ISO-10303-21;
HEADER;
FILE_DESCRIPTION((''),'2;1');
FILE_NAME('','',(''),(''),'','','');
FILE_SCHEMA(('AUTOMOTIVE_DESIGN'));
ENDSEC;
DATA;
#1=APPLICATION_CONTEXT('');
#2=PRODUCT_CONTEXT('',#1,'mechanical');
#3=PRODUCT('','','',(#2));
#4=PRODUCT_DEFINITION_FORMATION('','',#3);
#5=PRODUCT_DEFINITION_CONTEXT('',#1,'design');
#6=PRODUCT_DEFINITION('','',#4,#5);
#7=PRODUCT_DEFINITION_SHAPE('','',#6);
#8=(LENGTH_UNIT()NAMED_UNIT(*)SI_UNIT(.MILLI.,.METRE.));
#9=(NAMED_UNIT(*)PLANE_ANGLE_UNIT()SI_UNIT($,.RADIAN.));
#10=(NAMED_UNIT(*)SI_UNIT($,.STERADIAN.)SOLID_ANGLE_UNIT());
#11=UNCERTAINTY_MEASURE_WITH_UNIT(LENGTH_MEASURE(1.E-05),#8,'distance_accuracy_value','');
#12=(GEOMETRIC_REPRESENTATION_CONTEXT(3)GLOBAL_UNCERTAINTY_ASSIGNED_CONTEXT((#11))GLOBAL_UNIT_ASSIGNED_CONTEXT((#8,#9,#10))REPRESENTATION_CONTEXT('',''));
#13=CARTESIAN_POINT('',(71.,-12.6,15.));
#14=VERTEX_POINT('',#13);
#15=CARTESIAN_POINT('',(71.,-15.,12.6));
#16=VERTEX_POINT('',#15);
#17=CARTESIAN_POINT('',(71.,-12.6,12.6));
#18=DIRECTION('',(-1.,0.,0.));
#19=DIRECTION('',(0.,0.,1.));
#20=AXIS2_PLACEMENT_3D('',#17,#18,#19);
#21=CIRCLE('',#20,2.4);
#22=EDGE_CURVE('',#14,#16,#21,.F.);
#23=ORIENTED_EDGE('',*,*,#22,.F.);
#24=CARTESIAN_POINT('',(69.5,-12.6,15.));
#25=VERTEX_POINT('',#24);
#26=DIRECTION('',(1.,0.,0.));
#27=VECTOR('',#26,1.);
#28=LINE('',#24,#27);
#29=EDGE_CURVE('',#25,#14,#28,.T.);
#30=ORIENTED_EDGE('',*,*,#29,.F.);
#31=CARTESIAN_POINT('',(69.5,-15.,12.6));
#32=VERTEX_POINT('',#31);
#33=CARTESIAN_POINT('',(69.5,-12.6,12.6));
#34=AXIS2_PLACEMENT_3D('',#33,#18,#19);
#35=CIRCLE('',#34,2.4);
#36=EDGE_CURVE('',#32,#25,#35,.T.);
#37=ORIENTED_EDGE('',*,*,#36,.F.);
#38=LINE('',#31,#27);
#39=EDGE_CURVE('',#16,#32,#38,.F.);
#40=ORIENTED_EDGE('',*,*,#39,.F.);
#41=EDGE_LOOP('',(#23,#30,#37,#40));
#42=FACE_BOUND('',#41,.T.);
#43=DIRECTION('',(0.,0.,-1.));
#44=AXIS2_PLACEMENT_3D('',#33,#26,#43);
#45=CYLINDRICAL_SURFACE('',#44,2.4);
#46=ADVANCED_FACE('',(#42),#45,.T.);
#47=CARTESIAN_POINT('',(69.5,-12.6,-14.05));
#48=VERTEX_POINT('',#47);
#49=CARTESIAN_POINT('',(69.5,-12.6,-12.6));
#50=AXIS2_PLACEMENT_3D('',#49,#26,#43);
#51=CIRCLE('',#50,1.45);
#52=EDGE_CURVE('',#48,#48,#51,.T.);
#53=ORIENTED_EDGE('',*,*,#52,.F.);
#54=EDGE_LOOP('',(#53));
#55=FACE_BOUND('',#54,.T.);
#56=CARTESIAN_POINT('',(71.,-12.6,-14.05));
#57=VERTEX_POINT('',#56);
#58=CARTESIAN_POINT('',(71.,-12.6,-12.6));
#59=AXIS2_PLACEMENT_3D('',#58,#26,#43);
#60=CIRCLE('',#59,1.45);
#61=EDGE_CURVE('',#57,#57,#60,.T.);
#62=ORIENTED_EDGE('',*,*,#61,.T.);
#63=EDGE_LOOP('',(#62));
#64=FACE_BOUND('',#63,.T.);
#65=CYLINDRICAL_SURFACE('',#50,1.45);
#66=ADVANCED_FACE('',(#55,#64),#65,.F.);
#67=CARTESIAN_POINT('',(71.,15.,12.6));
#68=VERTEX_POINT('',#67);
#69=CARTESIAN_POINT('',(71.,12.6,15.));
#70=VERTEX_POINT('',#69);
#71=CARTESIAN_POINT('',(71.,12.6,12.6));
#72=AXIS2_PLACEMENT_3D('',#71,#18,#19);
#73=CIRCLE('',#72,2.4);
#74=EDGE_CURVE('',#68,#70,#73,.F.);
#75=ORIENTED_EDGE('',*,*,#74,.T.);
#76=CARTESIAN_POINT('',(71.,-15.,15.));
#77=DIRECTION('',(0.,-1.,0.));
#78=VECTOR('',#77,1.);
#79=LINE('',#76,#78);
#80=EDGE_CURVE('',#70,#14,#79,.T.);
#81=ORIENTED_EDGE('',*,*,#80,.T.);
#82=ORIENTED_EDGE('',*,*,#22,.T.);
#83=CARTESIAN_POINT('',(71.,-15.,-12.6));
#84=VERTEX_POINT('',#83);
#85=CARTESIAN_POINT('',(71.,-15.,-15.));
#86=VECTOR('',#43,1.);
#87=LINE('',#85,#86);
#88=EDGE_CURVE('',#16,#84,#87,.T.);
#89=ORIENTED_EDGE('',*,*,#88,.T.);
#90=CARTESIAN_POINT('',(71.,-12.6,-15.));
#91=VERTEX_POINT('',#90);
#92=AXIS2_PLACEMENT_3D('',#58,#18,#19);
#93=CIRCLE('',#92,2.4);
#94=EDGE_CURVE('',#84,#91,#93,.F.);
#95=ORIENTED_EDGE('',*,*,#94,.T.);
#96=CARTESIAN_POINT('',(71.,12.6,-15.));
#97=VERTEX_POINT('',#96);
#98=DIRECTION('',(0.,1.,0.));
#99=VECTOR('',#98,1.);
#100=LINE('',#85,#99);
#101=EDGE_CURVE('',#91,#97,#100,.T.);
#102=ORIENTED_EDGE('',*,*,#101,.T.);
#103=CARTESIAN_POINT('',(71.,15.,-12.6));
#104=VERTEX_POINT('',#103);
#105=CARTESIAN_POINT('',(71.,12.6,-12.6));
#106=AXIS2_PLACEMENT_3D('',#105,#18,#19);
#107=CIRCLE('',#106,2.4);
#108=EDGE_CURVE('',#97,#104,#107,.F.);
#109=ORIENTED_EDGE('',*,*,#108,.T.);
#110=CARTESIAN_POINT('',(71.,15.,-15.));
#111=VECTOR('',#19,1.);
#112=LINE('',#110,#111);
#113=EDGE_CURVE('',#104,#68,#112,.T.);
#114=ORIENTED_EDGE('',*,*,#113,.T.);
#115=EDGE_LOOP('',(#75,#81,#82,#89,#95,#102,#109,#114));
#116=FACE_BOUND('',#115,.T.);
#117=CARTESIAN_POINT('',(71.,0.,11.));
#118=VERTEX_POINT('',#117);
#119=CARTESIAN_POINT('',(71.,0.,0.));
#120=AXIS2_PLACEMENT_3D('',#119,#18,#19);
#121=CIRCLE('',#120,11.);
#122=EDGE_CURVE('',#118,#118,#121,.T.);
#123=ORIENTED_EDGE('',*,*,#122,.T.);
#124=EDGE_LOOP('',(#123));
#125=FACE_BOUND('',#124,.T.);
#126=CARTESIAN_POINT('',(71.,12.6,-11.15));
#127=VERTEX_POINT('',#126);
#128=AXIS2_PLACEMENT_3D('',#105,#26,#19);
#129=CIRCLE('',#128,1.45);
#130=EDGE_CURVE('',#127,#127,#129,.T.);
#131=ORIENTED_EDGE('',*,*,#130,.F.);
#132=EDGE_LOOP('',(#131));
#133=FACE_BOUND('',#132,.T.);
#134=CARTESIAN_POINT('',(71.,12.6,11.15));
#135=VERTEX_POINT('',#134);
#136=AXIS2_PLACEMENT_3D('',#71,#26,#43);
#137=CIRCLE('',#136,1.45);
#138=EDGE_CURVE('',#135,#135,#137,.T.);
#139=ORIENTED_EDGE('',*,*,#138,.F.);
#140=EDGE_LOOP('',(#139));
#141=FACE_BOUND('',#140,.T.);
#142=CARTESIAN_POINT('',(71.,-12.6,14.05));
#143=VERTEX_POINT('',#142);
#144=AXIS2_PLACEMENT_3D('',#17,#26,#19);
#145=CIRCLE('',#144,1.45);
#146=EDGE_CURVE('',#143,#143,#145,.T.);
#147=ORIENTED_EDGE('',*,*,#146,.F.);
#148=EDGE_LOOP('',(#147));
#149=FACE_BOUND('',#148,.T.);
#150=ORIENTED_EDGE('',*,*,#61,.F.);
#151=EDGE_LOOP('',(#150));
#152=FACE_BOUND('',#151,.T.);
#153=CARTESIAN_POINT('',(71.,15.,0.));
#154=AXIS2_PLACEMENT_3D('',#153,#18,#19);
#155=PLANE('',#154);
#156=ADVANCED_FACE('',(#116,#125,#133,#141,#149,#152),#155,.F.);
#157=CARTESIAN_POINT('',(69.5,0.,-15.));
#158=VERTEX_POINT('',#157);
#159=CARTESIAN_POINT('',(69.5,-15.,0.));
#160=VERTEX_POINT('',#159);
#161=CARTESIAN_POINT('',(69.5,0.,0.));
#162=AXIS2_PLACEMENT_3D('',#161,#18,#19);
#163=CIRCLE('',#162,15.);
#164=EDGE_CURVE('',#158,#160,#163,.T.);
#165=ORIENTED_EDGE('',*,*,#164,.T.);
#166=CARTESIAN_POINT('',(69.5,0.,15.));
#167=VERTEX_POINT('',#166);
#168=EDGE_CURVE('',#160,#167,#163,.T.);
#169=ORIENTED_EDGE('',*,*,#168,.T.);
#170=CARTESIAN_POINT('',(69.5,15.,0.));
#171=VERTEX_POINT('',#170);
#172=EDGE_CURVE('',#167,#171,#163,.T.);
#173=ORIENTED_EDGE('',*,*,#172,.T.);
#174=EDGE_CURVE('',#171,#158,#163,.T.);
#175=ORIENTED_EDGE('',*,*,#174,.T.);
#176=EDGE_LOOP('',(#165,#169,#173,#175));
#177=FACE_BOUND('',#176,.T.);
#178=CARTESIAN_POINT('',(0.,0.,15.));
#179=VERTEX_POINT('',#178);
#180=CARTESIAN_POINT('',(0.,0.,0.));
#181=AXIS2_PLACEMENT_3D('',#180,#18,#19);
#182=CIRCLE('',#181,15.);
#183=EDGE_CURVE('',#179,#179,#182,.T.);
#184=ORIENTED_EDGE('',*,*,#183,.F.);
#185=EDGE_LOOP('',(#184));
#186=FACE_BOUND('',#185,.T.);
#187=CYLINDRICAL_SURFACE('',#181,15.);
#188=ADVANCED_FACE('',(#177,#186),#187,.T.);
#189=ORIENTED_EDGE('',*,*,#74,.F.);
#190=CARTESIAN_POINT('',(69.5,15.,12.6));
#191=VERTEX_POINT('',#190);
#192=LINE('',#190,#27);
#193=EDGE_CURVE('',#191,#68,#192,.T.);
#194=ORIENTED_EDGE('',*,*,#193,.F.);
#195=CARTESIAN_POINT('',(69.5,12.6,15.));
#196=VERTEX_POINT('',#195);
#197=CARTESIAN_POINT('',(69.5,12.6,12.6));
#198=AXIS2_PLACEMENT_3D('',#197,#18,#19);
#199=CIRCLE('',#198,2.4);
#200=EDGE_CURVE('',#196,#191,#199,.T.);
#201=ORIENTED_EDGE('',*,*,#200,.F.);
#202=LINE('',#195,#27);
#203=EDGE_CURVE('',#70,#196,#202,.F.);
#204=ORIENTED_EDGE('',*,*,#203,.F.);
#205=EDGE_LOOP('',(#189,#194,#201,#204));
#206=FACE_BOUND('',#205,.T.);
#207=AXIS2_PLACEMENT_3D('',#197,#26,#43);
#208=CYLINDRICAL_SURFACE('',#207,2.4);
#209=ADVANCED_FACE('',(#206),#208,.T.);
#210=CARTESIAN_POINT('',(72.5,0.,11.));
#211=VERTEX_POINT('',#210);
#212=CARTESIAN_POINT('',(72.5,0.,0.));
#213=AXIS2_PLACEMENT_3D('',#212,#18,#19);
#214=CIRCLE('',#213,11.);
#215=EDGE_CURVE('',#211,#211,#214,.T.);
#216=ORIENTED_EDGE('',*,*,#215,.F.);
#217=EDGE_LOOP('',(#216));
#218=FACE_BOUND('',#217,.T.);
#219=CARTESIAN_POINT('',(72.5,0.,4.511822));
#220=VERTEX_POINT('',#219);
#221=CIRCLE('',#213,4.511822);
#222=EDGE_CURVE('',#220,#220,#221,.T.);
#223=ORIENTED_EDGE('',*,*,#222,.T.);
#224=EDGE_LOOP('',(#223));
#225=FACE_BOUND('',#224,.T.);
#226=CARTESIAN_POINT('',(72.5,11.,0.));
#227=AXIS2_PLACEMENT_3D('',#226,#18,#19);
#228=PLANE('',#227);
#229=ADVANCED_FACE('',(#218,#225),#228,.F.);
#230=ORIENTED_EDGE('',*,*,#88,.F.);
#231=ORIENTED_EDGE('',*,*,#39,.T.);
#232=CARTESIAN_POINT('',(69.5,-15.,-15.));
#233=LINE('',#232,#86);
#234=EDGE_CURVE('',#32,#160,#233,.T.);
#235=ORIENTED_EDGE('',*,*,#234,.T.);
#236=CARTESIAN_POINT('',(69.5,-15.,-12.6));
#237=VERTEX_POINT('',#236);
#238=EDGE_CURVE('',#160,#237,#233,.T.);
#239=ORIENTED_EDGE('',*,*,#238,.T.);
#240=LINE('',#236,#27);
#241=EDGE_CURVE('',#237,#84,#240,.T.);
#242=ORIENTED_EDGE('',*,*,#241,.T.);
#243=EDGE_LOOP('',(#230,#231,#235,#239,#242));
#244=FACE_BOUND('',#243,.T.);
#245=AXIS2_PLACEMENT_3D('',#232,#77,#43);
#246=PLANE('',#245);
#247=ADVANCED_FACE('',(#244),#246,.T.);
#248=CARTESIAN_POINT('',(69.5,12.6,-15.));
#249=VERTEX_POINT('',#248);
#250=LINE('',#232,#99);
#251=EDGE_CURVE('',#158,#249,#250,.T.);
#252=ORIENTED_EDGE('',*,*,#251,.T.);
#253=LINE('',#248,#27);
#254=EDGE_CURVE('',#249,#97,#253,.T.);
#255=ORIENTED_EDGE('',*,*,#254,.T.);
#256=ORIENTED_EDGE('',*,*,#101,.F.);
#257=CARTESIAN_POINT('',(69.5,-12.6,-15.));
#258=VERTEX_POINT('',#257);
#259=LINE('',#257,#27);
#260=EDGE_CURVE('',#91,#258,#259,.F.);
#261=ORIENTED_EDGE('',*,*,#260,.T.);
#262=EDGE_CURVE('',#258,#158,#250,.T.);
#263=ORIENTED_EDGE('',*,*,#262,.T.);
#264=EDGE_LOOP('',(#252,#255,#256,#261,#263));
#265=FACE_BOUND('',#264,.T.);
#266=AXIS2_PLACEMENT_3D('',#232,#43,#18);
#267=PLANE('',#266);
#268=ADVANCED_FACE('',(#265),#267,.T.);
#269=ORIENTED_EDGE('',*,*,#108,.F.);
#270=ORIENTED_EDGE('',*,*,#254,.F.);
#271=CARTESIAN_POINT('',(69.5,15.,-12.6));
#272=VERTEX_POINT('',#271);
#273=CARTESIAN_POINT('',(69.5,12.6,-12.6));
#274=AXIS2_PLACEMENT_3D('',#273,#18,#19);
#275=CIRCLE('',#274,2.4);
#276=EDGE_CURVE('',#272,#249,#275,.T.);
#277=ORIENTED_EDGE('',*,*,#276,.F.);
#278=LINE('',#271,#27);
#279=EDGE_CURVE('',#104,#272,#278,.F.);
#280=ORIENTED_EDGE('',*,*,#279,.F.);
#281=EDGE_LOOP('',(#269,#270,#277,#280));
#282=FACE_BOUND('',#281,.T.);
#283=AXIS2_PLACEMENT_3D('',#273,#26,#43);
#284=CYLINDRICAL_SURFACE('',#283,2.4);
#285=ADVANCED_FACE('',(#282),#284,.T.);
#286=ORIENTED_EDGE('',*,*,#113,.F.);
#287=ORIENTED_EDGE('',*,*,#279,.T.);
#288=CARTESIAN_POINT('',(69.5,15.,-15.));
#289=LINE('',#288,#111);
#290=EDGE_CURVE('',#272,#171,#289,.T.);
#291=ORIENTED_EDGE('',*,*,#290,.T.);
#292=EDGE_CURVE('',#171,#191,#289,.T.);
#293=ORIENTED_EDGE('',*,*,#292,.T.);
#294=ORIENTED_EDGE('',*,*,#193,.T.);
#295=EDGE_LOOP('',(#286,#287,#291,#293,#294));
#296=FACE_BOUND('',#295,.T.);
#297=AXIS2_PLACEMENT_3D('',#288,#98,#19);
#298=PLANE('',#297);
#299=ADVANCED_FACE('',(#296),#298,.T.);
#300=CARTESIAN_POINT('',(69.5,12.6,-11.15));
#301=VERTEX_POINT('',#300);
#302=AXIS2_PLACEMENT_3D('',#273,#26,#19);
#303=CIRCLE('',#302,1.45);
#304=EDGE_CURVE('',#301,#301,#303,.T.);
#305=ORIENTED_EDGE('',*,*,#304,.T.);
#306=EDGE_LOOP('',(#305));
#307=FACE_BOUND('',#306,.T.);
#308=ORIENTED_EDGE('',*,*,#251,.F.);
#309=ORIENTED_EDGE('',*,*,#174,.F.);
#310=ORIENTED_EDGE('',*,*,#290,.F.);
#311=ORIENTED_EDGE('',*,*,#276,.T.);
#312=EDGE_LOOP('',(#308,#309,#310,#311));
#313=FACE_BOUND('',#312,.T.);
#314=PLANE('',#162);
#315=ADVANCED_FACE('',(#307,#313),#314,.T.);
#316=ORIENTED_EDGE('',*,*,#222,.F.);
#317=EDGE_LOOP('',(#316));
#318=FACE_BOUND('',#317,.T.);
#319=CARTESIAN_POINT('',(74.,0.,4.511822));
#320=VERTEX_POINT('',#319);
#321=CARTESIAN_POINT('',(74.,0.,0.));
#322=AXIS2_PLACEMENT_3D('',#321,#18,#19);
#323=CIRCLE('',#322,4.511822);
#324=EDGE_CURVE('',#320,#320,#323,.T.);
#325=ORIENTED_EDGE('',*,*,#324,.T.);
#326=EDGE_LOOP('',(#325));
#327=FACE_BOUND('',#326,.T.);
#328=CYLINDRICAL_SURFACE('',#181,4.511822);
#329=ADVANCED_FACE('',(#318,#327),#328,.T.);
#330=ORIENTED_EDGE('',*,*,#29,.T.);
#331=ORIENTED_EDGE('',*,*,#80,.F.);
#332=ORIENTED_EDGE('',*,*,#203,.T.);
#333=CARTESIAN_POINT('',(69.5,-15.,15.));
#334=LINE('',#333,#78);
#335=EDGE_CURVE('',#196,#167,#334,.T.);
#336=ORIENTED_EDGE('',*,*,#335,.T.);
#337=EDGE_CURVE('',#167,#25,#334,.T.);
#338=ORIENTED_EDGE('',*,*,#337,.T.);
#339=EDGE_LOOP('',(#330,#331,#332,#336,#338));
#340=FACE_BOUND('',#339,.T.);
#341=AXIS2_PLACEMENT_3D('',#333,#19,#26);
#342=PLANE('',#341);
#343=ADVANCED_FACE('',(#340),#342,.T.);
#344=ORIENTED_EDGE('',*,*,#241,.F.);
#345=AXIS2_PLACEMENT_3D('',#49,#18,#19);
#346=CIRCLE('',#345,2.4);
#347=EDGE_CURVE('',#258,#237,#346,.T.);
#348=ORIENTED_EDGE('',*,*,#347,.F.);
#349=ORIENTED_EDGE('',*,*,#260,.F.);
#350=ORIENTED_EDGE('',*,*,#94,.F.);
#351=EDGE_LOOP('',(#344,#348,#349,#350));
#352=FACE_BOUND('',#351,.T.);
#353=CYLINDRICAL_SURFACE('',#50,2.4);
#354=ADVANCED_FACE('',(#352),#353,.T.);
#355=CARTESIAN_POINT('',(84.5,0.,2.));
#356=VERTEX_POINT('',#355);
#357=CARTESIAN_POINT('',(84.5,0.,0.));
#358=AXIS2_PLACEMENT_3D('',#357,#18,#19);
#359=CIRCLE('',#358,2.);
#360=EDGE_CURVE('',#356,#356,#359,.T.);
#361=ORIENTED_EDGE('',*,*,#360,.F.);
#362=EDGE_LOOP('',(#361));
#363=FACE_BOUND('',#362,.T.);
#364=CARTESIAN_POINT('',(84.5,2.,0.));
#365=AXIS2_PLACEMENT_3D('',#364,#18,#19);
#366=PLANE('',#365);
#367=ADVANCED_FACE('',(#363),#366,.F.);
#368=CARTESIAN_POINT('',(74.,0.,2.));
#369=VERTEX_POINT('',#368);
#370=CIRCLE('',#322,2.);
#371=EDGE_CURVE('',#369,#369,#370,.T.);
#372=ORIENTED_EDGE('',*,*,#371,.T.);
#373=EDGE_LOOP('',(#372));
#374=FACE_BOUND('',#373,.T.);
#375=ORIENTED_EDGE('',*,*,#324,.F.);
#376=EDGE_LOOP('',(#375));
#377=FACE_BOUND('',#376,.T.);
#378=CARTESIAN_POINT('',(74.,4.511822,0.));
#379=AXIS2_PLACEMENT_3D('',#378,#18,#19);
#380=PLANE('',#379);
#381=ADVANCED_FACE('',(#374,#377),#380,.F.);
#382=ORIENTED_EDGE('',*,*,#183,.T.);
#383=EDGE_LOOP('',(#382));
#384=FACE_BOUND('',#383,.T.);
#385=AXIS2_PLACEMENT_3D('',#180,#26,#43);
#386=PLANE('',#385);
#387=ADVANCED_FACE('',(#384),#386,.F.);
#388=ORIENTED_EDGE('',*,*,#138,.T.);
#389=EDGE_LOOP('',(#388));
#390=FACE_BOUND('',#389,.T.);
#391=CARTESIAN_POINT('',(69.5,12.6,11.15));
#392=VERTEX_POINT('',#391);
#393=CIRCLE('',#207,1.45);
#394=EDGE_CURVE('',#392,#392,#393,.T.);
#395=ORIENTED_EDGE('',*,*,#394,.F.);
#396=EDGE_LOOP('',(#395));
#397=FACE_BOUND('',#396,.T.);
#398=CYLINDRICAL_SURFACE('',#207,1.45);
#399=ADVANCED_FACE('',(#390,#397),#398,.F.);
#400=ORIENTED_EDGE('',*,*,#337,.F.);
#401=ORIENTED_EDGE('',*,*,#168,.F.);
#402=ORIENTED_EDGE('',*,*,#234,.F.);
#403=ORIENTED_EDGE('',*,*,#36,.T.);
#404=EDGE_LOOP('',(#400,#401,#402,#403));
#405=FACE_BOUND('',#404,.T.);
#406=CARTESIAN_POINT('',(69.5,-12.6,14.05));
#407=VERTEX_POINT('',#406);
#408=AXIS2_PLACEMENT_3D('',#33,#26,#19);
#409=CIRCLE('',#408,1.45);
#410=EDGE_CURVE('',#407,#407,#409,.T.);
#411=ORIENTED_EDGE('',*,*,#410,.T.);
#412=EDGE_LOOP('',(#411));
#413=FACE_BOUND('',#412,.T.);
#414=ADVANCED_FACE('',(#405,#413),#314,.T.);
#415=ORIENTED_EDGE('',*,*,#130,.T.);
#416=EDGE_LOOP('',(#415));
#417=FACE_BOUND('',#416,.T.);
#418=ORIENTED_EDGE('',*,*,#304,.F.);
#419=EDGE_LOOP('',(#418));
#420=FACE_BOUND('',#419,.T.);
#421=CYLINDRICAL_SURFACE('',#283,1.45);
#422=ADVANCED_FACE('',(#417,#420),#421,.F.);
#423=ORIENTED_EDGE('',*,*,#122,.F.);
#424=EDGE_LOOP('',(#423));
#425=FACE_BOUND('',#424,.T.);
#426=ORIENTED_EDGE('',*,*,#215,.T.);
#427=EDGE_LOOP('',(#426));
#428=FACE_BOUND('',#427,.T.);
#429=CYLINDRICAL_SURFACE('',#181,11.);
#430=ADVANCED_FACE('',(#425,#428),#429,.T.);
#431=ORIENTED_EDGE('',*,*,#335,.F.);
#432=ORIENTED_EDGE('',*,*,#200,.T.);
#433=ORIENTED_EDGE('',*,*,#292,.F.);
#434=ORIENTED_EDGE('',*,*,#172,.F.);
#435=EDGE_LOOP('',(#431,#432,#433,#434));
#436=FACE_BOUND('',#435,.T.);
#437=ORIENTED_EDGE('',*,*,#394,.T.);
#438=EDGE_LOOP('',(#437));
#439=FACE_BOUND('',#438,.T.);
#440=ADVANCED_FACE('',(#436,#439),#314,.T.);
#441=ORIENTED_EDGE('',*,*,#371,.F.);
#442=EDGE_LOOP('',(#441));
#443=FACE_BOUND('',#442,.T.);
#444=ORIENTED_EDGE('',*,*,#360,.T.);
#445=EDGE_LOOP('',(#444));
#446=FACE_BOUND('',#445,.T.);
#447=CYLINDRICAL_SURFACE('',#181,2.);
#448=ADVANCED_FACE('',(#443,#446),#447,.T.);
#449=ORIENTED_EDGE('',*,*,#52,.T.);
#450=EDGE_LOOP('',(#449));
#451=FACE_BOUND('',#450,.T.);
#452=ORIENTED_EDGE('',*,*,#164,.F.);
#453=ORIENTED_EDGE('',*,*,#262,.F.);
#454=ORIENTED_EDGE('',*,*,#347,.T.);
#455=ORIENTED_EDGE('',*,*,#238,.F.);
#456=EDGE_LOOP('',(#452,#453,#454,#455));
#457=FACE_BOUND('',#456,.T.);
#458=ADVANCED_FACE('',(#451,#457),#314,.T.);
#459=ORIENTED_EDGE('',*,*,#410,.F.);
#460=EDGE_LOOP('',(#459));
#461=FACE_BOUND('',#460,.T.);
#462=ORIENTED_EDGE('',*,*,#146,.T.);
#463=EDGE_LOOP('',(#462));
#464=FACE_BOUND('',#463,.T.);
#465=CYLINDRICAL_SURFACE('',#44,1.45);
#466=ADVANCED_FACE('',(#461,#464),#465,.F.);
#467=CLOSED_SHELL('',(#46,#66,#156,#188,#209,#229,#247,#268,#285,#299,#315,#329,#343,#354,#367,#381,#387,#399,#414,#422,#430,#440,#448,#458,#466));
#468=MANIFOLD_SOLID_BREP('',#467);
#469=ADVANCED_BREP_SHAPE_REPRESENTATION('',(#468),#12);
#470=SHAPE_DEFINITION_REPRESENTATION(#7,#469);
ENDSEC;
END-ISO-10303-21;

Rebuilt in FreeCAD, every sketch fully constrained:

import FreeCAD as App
import Part
import Sketcher

V = App.Vector


def edges_at(feature, points):
    """Names of the edges that pass closest to the given points."""
    edges = feature.Shape.Edges
    near = lambda p: min(range(len(edges)), key=lambda i: edges[i].distToShape(Part.Vertex(*p))[0])
    return sorted({f"Edge{near(p) + 1}" for p in points})

doc = App.newDocument("Part")
body = doc.addObject("PartDesign::Body", "Body")

# Sketch on XY plane
sketch1 = body.newObject("Sketcher::SketchObject", "Sketch")
sketch1.AttachmentSupport = (doc.getObject("XY_Plane"), [""])
sketch1.MapMode = "FlatFace"
sketch1.addGeometry([
    Part.LineSegment(V(0, 15, 0), V(0, 0, 0)),  # 0
    Part.LineSegment(V(0, 0, 0), V(84.5, 0, 0)),  # 1
    Part.LineSegment(V(84.5, 0, 0), V(84.5, 2, 0)),  # 2
    Part.LineSegment(V(84.5, 2, 0), V(74, 2, 0)),  # 3
    Part.LineSegment(V(74, 2, 0), V(74, 4.5, 0)),  # 4
    Part.LineSegment(V(74, 4.5, 0), V(72.5, 4.5, 0)),  # 5
    Part.LineSegment(V(72.5, 4.5, 0), V(72.5, 11, 0)),  # 6
    Part.LineSegment(V(72.5, 11, 0), V(71, 11, 0)),  # 7
    Part.LineSegment(V(71, 11, 0), V(71, 15, 0)),  # 8
    Part.LineSegment(V(71, 15, 0), V(0, 15, 0)),  # 9
], False)
sketch1.addConstraint([
    Sketcher.Constraint("Coincident", 0, 2, 1, 1),
    Sketcher.Constraint("Coincident", 1, 2, 2, 1),
    Sketcher.Constraint("Coincident", 2, 2, 3, 1),
    Sketcher.Constraint("Coincident", 3, 2, 4, 1),
    Sketcher.Constraint("Coincident", 4, 2, 5, 1),
    Sketcher.Constraint("Coincident", 5, 2, 6, 1),
    Sketcher.Constraint("Coincident", 6, 2, 7, 1),
    Sketcher.Constraint("Coincident", 7, 2, 8, 1),
    Sketcher.Constraint("Coincident", 8, 2, 9, 1),
    Sketcher.Constraint("Coincident", 9, 2, 0, 1),
    Sketcher.Constraint("Vertical", 0),
    Sketcher.Constraint("Horizontal", 1),
    Sketcher.Constraint("Vertical", 2),
    Sketcher.Constraint("Horizontal", 3),
    Sketcher.Constraint("Vertical", 4),
    Sketcher.Constraint("Horizontal", 5),
    Sketcher.Constraint("Vertical", 6),
    Sketcher.Constraint("Horizontal", 7),
    Sketcher.Constraint("Vertical", 8),
    Sketcher.Constraint("Horizontal", 9),
    Sketcher.Constraint("Coincident", 0, 2, -1, 1),
    Sketcher.Constraint("Equal", 5, 7),
    Sketcher.Constraint("DistanceX", 9, 2, 9, 1, 71.0),
    Sketcher.Constraint("DistanceY", 0, 2, 0, 1, 15.0),
    Sketcher.Constraint("DistanceY", 2, 1, 2, 2, 2.0),
    Sketcher.Constraint("DistanceY", 8, 1, 8, 2, 4.0),
    Sketcher.Constraint("DistanceX", 1, 1, 1, 2, 84.5),
    Sketcher.Constraint("DistanceX", 3, 2, 3, 1, 10.5),
    Sketcher.Constraint("DistanceY", 4, 1, 4, 2, 2.511822),
])
revolution = body.newObject("PartDesign::Revolution", "Revolution")
revolution.Profile = sketch1
revolution.ReferenceAxis = (sketch1, ["H_Axis"])
revolution.Angle = 360

# Sketch on YZ plane
sketch2 = body.newObject("Sketcher::SketchObject", "Sketch001")
sketch2.AttachmentSupport = (doc.getObject("YZ_Plane"), [""])
sketch2.MapMode = "FlatFace"
sketch2.AttachmentOffset = App.Placement(V(0, 0, 71), App.Rotation())
sketch2.addGeometry([
    Part.LineSegment(V(15, 15, 0), V(-15, 15, 0)),  # 0
    Part.LineSegment(V(-15, 15, 0), V(-15, -15, 0)),  # 1
    Part.LineSegment(V(-15, -15, 0), V(15, -15, 0)),  # 2
    Part.LineSegment(V(15, -15, 0), V(15, 15, 0)),  # 3
    Part.Circle(V(-12.6, 12.6, 0), V(0, 0, 1), 1.4),  # 4
    Part.Circle(V(-12.6, -12.6, 0), V(0, 0, 1), 1.4),  # 5
    Part.Circle(V(12.6, 12.6, 0), V(0, 0, 1), 1.4),  # 6
    Part.Circle(V(12.6, -12.6, 0), V(0, 0, 1), 1.4),  # 7
], False)
sketch2.addConstraint([
    Sketcher.Constraint("Coincident", 0, 2, 1, 1),
    Sketcher.Constraint("Coincident", 1, 2, 2, 1),
    Sketcher.Constraint("Coincident", 2, 2, 3, 1),
    Sketcher.Constraint("Coincident", 3, 2, 0, 1),
    Sketcher.Constraint("Horizontal", 0),
    Sketcher.Constraint("Vertical", 1),
    Sketcher.Constraint("Horizontal", 2),
    Sketcher.Constraint("Vertical", 3),
    Sketcher.Constraint("Equal", 4, 5),
    Sketcher.Constraint("Equal", 5, 6),
    Sketcher.Constraint("Equal", 6, 7),
    Sketcher.Constraint("Symmetric", 5, 3, 6, 3, -1, 1),
    Sketcher.Constraint("Symmetric", 4, 3, 7, 3, -1, 1),
    Sketcher.Constraint("Symmetric", 0, 2, 2, 2, -1, 1),
    Sketcher.Constraint("Symmetric", 4, 3, 6, 3, -2),
    Sketcher.Constraint("Equal", 2, 1),
    Sketcher.Constraint("Diameter", 4, 2.9),
    Sketcher.Constraint("DistanceX", 0, 2, 0, 1, 30.0),
    Sketcher.Constraint("DistanceX", 4, 3, -1, 1, 12.6),
    Sketcher.Constraint("DistanceY", -1, 1, 4, 3, 12.6),
])
pad1 = body.newObject("PartDesign::Pad", "Pad")
pad1.Profile = sketch2
pad1.Length = 1.5
pad1.Reversed = True
doc.recompute()

fillet = body.newObject("PartDesign::Fillet", "Fillet")
fillet.Base = (pad1, edges_at(pad1, [
    (70.25, -15, -15),
    (70.25, -15, 15),
    (70.25, 15, 15),
    (70.25, 15, -15),
]))
fillet.Radius = 2.4

doc.recompute()
